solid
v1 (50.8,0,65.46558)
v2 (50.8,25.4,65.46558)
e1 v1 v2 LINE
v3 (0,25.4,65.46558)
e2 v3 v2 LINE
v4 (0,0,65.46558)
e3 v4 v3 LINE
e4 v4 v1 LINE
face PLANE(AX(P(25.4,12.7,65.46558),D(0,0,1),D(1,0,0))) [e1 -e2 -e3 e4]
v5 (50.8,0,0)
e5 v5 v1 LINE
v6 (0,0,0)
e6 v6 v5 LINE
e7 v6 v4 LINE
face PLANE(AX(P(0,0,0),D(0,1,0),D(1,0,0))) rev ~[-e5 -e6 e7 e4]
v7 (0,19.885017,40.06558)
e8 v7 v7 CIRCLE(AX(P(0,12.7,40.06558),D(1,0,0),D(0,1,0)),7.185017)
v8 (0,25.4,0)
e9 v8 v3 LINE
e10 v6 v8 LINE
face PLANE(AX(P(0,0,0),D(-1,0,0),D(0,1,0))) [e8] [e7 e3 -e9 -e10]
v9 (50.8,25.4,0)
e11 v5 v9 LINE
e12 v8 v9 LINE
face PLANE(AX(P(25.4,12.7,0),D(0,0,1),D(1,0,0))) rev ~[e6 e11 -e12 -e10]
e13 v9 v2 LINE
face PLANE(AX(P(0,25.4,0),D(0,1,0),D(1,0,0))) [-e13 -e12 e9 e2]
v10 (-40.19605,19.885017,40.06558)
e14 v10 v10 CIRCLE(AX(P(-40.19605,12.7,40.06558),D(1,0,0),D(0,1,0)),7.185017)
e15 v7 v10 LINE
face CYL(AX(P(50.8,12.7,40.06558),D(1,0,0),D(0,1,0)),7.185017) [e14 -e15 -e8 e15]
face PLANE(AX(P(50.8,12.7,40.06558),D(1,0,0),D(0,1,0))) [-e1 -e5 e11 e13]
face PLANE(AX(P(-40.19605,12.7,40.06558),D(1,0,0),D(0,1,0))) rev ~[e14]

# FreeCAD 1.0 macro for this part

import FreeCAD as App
import Part
import Sketcher

V = App.Vector
Q = App.Units.Quantity

doc = App.newDocument("Part")
body = doc.addObject("PartDesign::Body", "Body")

sketch1 = body.newObject("Sketcher::SketchObject", "Sketch")
sketch1.AttachmentSupport = (doc.getObject("XY_Plane"), [""])
sketch1.MapMode = "FlatFace"
sketch1.addGeometry([
    Part.LineSegment(V(0, 25.4, 0), V(0, 0, 0)),
    Part.LineSegment(V(0, 0, 0), V(50.8, 0, 0)),
    Part.LineSegment(V(50.8, 0, 0), V(50.8, 25.4, 0)),
    Part.LineSegment(V(50.8, 25.4, 0), V(0, 25.4, 0)),
], False)
sketch1.addConstraint([
    Sketcher.Constraint("Coincident", 0, 2, 1, 1),
    Sketcher.Constraint("Coincident", 1, 2, 2, 1),
    Sketcher.Constraint("Coincident", 2, 2, 3, 1),
    Sketcher.Constraint("Coincident", 3, 2, 0, 1),
    Sketcher.Constraint("Vertical", 0),
    Sketcher.Constraint("Horizontal", 1),
    Sketcher.Constraint("Vertical", 2),
    Sketcher.Constraint("Horizontal", 3),
    Sketcher.Constraint("Coincident", 0, 2, -1, 1),
    Sketcher.Constraint("DistanceX", 1, 1, 1, 2, Q("2 in")),
    Sketcher.Constraint("DistanceY", 0, 2, 0, 1, Q("1 in")),
])
pad1 = body.newObject("PartDesign::Pad", "Pad")
pad1.Profile = sketch1
pad1.Length = 65.46558

sketch2 = body.newObject("Sketcher::SketchObject", "Sketch001")
sketch2.AttachmentSupport = (doc.getObject("YZ_Plane"), [""])
sketch2.MapMode = "FlatFace"
sketch2.AttachmentOffset = App.Placement(V(0, 0, 2 * 25.4), App.Rotation())
sketch2.addGeometry(Part.Circle(V(12.7, 40.06558, 0), V(0, 0, 1), 7.185017), False)
sketch2.addConstraint([
    Sketcher.Constraint("DistanceX", -1, 1, 0, 3, Q("0.5 in")),
    Sketcher.Constraint("Diameter", 0, 14.370034),
    Sketcher.Constraint("DistanceY", -1, 1, 0, 3, 40.06558),
])
pad2 = body.newObject("PartDesign::Pad", "Pad001")
pad2.Profile = sketch2
pad2.Length = 90.99605
pad2.Reversed = True

doc.recompute()
